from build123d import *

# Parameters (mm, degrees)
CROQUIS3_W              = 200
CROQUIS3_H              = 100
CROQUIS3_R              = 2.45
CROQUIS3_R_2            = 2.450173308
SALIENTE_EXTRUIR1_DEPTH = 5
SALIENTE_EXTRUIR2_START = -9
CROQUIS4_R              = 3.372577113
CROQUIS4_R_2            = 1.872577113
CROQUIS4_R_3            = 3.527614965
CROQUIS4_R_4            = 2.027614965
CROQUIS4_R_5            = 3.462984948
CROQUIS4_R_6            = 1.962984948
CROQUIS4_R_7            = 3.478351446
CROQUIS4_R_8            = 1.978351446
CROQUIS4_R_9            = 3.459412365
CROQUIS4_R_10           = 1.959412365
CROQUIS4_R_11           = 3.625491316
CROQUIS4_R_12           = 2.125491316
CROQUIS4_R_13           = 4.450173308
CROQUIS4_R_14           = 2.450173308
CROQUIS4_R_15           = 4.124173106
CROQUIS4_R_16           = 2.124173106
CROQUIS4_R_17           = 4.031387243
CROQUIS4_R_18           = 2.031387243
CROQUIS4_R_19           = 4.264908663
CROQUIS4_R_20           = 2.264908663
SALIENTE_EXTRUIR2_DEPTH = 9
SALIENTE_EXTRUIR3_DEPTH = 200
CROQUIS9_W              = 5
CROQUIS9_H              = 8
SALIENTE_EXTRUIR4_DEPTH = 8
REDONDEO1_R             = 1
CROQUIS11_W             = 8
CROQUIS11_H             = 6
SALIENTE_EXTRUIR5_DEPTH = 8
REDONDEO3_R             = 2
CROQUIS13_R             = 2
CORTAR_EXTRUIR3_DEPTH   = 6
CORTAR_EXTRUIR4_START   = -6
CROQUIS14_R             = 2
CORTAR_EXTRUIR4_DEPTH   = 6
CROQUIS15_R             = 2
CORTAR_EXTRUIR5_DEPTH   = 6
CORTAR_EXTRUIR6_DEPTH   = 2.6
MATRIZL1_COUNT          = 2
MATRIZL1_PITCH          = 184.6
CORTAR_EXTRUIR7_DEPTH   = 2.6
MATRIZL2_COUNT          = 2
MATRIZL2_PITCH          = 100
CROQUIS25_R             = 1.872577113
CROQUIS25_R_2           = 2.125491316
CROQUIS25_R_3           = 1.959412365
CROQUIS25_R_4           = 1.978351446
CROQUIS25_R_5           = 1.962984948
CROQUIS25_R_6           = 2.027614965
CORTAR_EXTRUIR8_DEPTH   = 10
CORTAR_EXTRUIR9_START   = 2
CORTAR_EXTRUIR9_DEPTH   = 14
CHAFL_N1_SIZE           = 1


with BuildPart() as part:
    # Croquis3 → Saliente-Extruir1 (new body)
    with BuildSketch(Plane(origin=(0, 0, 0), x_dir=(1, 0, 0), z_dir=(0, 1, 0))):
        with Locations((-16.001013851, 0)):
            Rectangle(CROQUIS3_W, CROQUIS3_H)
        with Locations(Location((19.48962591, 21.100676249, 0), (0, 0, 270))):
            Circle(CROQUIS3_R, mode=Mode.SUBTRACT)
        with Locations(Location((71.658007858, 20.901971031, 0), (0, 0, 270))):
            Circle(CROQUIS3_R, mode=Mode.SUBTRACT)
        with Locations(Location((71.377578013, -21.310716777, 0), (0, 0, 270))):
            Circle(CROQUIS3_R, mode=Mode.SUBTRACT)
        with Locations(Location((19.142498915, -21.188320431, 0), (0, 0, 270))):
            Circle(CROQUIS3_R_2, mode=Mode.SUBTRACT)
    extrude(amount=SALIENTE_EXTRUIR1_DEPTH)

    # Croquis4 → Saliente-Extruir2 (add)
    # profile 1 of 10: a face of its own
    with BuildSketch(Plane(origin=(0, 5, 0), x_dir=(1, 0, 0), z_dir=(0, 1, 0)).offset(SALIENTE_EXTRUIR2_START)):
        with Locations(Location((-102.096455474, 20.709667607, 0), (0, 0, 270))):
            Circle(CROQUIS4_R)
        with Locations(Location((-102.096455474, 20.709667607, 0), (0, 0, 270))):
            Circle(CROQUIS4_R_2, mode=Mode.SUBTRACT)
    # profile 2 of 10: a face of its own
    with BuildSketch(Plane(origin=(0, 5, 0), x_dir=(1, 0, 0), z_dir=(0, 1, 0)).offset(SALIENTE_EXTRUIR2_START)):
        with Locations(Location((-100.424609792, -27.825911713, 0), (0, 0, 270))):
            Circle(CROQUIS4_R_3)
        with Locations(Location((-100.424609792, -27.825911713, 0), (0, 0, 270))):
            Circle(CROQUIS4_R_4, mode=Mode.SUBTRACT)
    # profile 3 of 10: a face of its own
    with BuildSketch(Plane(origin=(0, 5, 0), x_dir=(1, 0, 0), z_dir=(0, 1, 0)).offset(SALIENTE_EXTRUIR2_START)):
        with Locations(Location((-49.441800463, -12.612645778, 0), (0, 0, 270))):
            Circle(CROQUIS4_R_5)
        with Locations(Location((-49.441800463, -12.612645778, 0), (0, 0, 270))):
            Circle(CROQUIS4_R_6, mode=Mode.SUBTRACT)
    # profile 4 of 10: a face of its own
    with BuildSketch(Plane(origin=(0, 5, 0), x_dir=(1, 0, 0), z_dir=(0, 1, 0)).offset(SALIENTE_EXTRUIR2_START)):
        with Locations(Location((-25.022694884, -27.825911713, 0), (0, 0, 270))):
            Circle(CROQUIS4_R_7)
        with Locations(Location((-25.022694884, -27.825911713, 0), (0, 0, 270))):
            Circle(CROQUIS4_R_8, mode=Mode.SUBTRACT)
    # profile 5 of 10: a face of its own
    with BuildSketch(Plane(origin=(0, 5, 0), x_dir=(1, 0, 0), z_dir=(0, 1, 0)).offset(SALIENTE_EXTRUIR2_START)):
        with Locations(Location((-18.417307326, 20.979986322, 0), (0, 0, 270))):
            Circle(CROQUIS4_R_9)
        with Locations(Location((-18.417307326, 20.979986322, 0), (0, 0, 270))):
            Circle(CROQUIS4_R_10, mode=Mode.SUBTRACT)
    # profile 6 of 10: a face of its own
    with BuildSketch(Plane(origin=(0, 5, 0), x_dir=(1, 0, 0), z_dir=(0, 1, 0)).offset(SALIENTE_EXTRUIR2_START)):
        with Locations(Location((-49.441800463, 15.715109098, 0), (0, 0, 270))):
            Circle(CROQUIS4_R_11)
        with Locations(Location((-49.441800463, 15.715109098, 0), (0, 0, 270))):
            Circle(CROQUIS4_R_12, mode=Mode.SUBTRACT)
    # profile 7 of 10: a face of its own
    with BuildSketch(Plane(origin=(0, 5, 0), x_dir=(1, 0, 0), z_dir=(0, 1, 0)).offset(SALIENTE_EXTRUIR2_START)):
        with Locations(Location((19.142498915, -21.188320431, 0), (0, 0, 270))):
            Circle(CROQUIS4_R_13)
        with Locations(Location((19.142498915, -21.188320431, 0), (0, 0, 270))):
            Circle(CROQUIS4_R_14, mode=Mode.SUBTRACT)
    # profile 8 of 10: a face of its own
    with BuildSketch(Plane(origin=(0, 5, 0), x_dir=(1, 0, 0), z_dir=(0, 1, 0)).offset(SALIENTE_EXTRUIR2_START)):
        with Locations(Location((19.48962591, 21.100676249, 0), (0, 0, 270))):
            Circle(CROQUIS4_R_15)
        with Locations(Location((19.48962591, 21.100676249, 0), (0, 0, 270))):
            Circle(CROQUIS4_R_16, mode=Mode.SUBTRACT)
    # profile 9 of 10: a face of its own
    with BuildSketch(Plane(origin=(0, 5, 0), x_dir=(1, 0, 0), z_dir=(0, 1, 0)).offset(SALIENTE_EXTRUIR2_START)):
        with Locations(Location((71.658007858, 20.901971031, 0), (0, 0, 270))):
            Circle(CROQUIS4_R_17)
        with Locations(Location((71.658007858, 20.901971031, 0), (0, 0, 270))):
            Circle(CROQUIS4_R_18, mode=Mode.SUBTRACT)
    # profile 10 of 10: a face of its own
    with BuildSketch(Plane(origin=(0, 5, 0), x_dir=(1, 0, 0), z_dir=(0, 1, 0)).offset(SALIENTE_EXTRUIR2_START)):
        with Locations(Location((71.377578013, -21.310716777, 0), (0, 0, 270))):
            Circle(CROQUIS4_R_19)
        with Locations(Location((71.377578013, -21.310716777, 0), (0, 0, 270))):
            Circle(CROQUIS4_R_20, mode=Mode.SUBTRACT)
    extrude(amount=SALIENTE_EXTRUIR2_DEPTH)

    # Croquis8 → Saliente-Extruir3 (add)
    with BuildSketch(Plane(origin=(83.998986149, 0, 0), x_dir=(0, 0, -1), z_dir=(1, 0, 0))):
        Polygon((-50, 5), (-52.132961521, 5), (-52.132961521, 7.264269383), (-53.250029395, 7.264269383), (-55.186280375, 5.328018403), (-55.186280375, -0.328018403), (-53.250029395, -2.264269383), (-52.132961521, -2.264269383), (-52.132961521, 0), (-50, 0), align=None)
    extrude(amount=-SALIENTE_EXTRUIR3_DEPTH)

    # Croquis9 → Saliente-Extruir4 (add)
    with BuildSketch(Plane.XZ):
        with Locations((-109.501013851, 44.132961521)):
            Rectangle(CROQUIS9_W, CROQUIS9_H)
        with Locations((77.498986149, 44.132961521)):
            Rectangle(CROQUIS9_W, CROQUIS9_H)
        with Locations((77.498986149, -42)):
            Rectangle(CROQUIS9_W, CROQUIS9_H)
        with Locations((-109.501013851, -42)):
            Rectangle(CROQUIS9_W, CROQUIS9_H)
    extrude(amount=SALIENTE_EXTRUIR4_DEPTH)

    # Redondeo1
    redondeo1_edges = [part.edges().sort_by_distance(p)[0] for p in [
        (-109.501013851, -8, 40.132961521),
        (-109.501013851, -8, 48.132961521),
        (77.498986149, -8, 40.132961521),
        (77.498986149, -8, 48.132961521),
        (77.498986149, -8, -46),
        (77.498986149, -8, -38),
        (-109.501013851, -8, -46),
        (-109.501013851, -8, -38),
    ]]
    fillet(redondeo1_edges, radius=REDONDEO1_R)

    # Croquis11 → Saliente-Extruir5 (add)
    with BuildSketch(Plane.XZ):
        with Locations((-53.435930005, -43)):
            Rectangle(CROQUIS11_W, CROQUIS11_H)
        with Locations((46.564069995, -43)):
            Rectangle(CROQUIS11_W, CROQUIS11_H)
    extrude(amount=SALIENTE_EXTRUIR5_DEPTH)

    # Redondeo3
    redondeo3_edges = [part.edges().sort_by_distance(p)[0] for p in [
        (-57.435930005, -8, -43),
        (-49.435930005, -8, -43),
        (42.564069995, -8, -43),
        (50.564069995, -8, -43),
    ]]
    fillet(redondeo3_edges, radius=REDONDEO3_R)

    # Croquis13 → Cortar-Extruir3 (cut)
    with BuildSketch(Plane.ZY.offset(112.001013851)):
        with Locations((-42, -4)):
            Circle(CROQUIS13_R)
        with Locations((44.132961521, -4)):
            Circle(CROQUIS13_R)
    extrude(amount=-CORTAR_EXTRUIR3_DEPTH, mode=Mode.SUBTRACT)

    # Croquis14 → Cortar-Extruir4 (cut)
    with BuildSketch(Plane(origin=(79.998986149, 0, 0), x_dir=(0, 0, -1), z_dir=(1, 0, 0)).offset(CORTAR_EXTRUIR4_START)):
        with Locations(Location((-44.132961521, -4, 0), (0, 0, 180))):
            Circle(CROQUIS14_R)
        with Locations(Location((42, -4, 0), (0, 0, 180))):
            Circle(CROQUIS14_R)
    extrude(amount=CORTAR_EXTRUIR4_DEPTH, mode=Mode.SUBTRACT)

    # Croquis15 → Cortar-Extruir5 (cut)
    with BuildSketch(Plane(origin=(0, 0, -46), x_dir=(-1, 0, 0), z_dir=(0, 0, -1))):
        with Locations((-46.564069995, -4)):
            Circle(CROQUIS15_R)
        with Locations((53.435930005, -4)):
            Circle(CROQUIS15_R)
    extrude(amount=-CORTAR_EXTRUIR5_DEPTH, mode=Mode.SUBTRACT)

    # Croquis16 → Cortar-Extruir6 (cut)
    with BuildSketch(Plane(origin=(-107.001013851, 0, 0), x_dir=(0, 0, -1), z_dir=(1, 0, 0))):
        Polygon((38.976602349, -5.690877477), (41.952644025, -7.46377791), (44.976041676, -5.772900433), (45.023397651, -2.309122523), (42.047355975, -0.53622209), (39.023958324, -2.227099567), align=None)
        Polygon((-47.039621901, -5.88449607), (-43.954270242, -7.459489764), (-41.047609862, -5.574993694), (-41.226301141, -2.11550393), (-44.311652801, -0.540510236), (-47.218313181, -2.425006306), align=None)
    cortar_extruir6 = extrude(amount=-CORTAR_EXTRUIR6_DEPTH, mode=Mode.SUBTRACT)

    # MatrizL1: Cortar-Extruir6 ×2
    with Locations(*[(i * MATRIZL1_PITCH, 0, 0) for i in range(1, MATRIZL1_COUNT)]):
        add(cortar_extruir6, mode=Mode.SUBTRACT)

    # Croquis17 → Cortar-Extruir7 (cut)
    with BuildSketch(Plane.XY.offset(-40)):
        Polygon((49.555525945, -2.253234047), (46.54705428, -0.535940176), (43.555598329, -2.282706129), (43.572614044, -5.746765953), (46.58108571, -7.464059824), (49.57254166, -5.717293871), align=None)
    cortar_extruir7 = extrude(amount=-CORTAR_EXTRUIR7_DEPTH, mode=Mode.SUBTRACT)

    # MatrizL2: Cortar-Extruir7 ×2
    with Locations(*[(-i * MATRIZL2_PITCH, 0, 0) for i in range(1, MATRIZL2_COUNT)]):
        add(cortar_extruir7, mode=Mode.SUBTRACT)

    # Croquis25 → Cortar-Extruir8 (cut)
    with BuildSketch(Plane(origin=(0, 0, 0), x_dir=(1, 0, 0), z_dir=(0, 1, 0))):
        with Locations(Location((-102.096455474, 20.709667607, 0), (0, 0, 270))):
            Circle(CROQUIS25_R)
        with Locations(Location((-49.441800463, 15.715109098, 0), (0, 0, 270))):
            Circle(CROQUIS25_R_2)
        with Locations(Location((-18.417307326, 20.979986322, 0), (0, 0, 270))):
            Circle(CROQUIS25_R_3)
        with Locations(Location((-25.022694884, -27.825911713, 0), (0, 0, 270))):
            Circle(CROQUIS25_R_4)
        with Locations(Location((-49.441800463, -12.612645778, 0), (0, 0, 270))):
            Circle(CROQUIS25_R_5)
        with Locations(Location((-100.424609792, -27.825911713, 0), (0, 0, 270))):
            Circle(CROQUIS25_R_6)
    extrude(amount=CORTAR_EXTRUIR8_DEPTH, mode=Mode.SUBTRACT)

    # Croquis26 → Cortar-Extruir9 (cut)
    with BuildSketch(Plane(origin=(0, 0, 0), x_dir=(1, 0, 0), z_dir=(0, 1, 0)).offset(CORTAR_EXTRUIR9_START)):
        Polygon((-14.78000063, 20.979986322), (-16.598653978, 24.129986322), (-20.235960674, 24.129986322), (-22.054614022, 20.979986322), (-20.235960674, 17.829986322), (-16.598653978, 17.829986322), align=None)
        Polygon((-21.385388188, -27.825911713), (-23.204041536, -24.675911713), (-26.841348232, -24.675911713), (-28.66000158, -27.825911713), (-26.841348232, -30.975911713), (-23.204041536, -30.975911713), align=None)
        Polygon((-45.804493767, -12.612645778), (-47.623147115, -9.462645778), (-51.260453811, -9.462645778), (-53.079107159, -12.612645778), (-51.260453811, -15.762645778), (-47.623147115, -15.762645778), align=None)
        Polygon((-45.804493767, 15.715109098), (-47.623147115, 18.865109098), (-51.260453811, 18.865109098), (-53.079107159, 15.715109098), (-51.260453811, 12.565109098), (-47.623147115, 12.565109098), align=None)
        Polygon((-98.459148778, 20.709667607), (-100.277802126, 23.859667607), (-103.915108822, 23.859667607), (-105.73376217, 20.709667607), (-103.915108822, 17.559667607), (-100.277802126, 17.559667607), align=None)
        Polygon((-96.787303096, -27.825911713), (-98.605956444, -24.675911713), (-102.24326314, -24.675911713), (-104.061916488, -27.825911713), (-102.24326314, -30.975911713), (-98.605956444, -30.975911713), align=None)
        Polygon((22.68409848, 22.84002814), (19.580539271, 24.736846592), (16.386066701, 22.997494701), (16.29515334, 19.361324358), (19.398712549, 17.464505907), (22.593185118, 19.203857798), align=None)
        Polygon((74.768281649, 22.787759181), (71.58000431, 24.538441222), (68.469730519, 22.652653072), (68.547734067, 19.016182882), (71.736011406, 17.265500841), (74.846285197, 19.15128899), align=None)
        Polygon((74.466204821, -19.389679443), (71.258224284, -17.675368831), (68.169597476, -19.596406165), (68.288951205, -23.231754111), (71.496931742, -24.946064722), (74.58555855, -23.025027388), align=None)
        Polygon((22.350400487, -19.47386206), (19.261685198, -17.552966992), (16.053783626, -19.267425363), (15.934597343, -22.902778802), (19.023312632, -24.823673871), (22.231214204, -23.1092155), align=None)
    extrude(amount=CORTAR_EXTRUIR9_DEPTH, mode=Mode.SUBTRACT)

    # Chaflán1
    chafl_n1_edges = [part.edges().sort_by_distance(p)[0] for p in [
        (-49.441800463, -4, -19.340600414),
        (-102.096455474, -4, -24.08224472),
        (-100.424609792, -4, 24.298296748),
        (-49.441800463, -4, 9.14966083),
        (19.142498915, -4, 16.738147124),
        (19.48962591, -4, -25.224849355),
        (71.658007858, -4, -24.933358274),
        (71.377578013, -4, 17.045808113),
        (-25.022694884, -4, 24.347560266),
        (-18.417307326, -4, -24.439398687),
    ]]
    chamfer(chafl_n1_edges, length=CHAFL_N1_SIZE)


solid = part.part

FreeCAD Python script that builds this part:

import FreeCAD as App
import Part
import Sketcher
from FreeCAD import Vector
Q = App.Units.Quantity


def edges_at(feature, points):
    """Names of the edges that pass closest to the given points."""
    edges = feature.Shape.Edges
    near = lambda p: min(range(len(edges)), key=lambda i: edges[i].distToShape(Part.Vertex(*p))[0])
    return sorted({f"Edge{near(p) + 1}" for p in points})


def add_polygon(sketch, points):
    """Adds a closed chain of lines whose ends are joined by coincident constraints."""
    first, n = sketch.GeometryCount, len(points)
    for a, b in zip(points, points[1:] + points[:1]):
        sketch.addGeometry(Part.LineSegment(App.Vector(*a, 0), App.Vector(*b, 0)), False)
    for i in range(n):
        sketch.addConstraint(Sketcher.Constraint("Coincident", first + i, 2, first + (i + 1) % n, 1))

doc = App.newDocument("Part")
body = doc.addObject("PartDesign::Body", "Body")

sketch1 = body.newObject("Sketcher::SketchObject", "Sketch")
sketch1.AttachmentSupport = (doc.getObject("XZ_Plane"), [""])
sketch1.MapMode = "FlatFace"
add_polygon(sketch1, [(-116, -50), (-116, 50), (84, 50), (84, -50)])
sketch1.addGeometry(Part.Circle(Vector(19.1, 21.2, 0), Vector(0, 0, 1), 2.5), False)
sketch1.addGeometry(Part.Circle(Vector(71.4, 21.3, 0), Vector(0, 0, 1), 2.5), False)
sketch1.addGeometry(Part.Circle(Vector(19.5, -21.1, 0), Vector(0, 0, 1), 2.5), False)
sketch1.addGeometry(Part.Circle(Vector(71.7, -20.9, 0), Vector(0, 0, 1), 2.5), False)
sketch1.addConstraint([
    Sketcher.Constraint("Vertical", 0),
    Sketcher.Constraint("Horizontal", 1),
    Sketcher.Constraint("Vertical", 2),
    Sketcher.Constraint("Horizontal", 3),
    Sketcher.Constraint("Equal", 5, 6),
    Sketcher.Constraint("Equal", 6, 7),
    Sketcher.Constraint("Diameter", 5, 4.9),
    Sketcher.Constraint("DistanceX", 1, 1, 1, 2, 200.0),
    Sketcher.Constraint("DistanceY", 0, 1, 0, 2, 100.0),
    Sketcher.Constraint("DistanceY", -1, 1, 0, 2, 50.0),
    Sketcher.Constraint("Diameter", 4, 4.900347),
    Sketcher.Constraint("DistanceX", -1, 1, 4, 3, 19.142499),
    Sketcher.Constraint("DistanceY", -1, 1, 4, 3, 21.18832),
    Sketcher.Constraint("DistanceX", -1, 1, 5, 3, 71.377578),
    Sketcher.Constraint("DistanceY", 7, 3, -1, 1, 20.901971),
    Sketcher.Constraint("DistanceX", 5, 3, 7, 3, 0.28043),
    Sketcher.Constraint("DistanceX", 6, 3, 7, 3, 52.168382),
    Sketcher.Constraint("DistanceX", 0, 2, 6, 3, 135.49064),
    Sketcher.Constraint("DistanceY", -1, 1, 5, 3, 21.310717),
    Sketcher.Constraint("DistanceY", 6, 3, -1, 1, 21.100676),
])
pad1 = body.newObject("PartDesign::Pad", "Pad")
pad1.Profile = sketch1
pad1.Length = 5
pad1.Reversed = True

sketch2 = body.newObject("Sketcher::SketchObject", "Sketch001")
sketch2.AttachmentSupport = (doc.getObject("XZ_Plane"), [""])
sketch2.MapMode = "FlatFace"
sketch2.AttachmentOffset = App.Placement(Vector(0, 0, 4), App.Rotation())
sketch2.addGeometry([
    Part.Circle(Vector(-102.1, -20.7, 0), Vector(0, 0, 1), 3.4),
    Part.Circle(Vector(-102.1, -20.7, 0), Vector(0, 0, 1), 1.9),
    Part.Circle(Vector(-100.4, 27.8, 0), Vector(0, 0, 1), 3.5),
    Part.Circle(Vector(-100.4, 27.8, 0), Vector(0, 0, 1), 2),
    Part.Circle(Vector(-49.4, 12.6, 0), Vector(0, 0, 1), 3.5),
    Part.Circle(Vector(-49.4, 12.6, 0), Vector(0, 0, 1), 2),
    Part.Circle(Vector(-25, 27.8, 0), Vector(0, 0, 1), 3.5),
    Part.Circle(Vector(-25, 27.8, 0), Vector(0, 0, 1), 2),
    Part.Circle(Vector(-18.4, -21, 0), Vector(0, 0, 1), 3.5),
    Part.Circle(Vector(-18.4, -21, 0), Vector(0, 0, 1), 2),
    Part.Circle(Vector(-49.4, -15.7, 0), Vector(0, 0, 1), 3.6),
    Part.Circle(Vector(-49.4, -15.7, 0), Vector(0, 0, 1), 2.1),
    Part.Circle(Vector(19.1, 21.2, 0), Vector(0, 0, 1), 4.5),
    Part.Circle(Vector(19.1, 21.2, 0), Vector(0, 0, 1), 2.5),
    Part.Circle(Vector(19.5, -21.1, 0), Vector(0, 0, 1), 4.1),
    Part.Circle(Vector(19.5, -21.1, 0), Vector(0, 0, 1), 2.1),
    Part.Circle(Vector(71.7, -20.9, 0), Vector(0, 0, 1), 4),
    Part.Circle(Vector(71.7, -20.9, 0), Vector(0, 0, 1), 2),
    Part.Circle(Vector(71.4, 21.3, 0), Vector(0, 0, 1), 4.3),
    Part.Circle(Vector(71.4, 21.3, 0), Vector(0, 0, 1), 2.3),
], False)
sketch2.addConstraint([
    Sketcher.Constraint("Coincident", 1, 3, 0, 3),
    Sketcher.Constraint("Coincident", 3, 3, 2, 3),
    Sketcher.Constraint("Coincident", 5, 3, 4, 3),
    Sketcher.Constraint("Coincident", 7, 3, 6, 3),
    Sketcher.Constraint("Coincident", 9, 3, 8, 3),
    Sketcher.Constraint("Coincident", 11, 3, 10, 3),
    Sketcher.Constraint("Coincident", 13, 3, 12, 3),
    Sketcher.Constraint("Coincident", 15, 3, 14, 3),
    Sketcher.Constraint("Coincident", 17, 3, 16, 3),
    Sketcher.Constraint("Coincident", 19, 3, 18, 3),
    Sketcher.Constraint("Horizontal", 3, 3, 6, 3),
    Sketcher.Constraint("Vertical", 5, 3, 10, 3),
    Sketcher.Constraint("Diameter", 2, 7.05523),
    Sketcher.Constraint("Diameter", 3, 4.05523),
    Sketcher.Constraint("Diameter", 4, 6.92597),
    Sketcher.Constraint("Diameter", 5, 3.92597),
    Sketcher.Constraint("Diameter", 0, 6.745154),
    Sketcher.Constraint("Diameter", 1, 3.745154),
    Sketcher.Constraint("Diameter", 6, 6.956703),
    Sketcher.Constraint("Diameter", 7, 3.956703),
    Sketcher.Constraint("Diameter", 8, 6.918825),
    Sketcher.Constraint("Diameter", 9, 3.918825),
    Sketcher.Constraint("Diameter", 10, 7.250983),
    Sketcher.Constraint("Diameter", 11, 4.250983),
    Sketcher.Constraint("Diameter", 12, 8.900347),
    Sketcher.Constraint("Diameter", 13, 4.900347),
    Sketcher.Constraint("Diameter", 14, 8.248346),
    Sketcher.Constraint("Diameter", 15, 4.248346),
    Sketcher.Constraint("Diameter", 16, 8.062774),
    Sketcher.Constraint("Diameter", 17, 4.062774),
    Sketcher.Constraint("Diameter", 18, 8.529817),
    Sketcher.Constraint("Diameter", 19, 4.529817),
    Sketcher.Constraint("DistanceX", 4, 3, -1, 1, 49.4418),
    Sketcher.Constraint("DistanceX", -1, 1, 12, 3, 19.142499),
    Sketcher.Constraint("DistanceY", 8, 3, 6, 3, 48.805898),
    Sketcher.Constraint("DistanceX", 2, 3, -1, 1, 100.42461),
    Sketcher.Constraint("DistanceY", -1, 1, 2, 3, 27.825912),
    Sketcher.Constraint("DistanceY", 10, 3, -1, 1, 15.715109),
    Sketcher.Constraint("DistanceY", -1, 1, 12, 3, 21.18832),
    Sketcher.Constraint("DistanceY", 16, 3, -1, 1, 20.901971),
    Sketcher.Constraint("DistanceX", -1, 1, 18, 3, 71.377578),
    Sketcher.Constraint("DistanceY", 0, 3, 2, 3, 48.535579),
    Sketcher.Constraint("DistanceX", 0, 3, 6, 3, 77.073761),
    Sketcher.Constraint("DistanceX", 0, 3, 8, 3, 83.679148),
    Sketcher.Constraint("DistanceY", 14, 3, 8, 3, 0.12069),
    Sketcher.Constraint("DistanceX", 6, 3, 14, 3, 44.512321),
    Sketcher.Constraint("DistanceX", 14, 3, 16, 3, 52.168382),
    Sketcher.Constraint("DistanceX", 12, 3, 16, 3, 52.515509),
    Sketcher.Constraint("DistanceY", -1, 1, 4, 3, 12.612646),
    Sketcher.Constraint("DistanceY", -1, 1, 18, 3, 21.310717),
])
pad2 = body.newObject("PartDesign::Pad", "Pad001")
pad2.Profile = sketch2
pad2.Length = 9
pad2.Reversed = True

sketch3 = body.newObject("Sketcher::SketchObject", "Sketch002")
sketch3.AttachmentSupport = (doc.getObject("YZ_Plane"), [""])
sketch3.MapMode = "FlatFace"
sketch3.AttachmentOffset = App.Placement(Vector(0, 0, 83.998986), App.Rotation())
add_polygon(sketch3, [(5, 50), (5, 52.1), (7.3, 52.1), (7.3, 53.3), (5.3, 55.2), (-0.3, 55.2), (-2.3, 53.3), (-2.3, 52.1), (0, 52.1), (0, 50)])
sketch3.addConstraint([
    Sketcher.Constraint("Vertical", 0),
    Sketcher.Constraint("Horizontal", 1),
    Sketcher.Constraint("Vertical", 2),
    Sketcher.Constraint("Horizontal", 4),
    Sketcher.Constraint("Vertical", 6),
    Sketcher.Constraint("Horizontal", 7),
    Sketcher.Constraint("Vertical", 8),
    Sketcher.Constraint("Horizontal", 9),
    Sketcher.Constraint("PointOnObject", 7, 2, -2),
    Sketcher.Constraint("Perpendicular", 3, 5),
    Sketcher.Constraint("Horizontal", 2, 2, 5, 2),
    Sketcher.Constraint("Horizontal", 1, 2, 6, 2),
    Sketcher.Constraint("Equal", 1, 7),
    Sketcher.Constraint("Equal", 3, 5),
    Sketcher.Constraint("DistanceX", 9, 1, 9, 2, 5.0),
    Sketcher.Constraint("DistanceY", -1, 1, 8, 2, 50.0),
    Sketcher.Constraint("DistanceX", 1, 1, 1, 2, 2.264269),
    Sketcher.Constraint("DistanceY", 0, 1, 0, 2, 2.132962),
    Sketcher.Constraint("DistanceX", 4, 2, 4, 1, 5.656037),
    Sketcher.Constraint("DistanceY", 2, 1, 2, 2, 1.117068),
])
pad3 = body.newObject("PartDesign::Pad", "Pad002")
pad3.Profile = sketch3
pad3.Length = 200
pad3.Reversed = True

sketch4 = body.newObject("Sketcher::SketchObject", "Sketch003")
sketch4.AttachmentSupport = (doc.getObject("XZ_Plane"), [""])
sketch4.MapMode = "FlatFace"
add_polygon(sketch4, [(-112, 48), (-112, 40), (-107, 40), (-107, 48)])
add_polygon(sketch4, [(75, 48), (75, 40), (80, 40), (80, 48)])
add_polygon(sketch4, [(75, -38), (75, -46), (80, -46), (80, -38)])
add_polygon(sketch4, [(-112, -38), (-112, -46), (-107, -46), (-107, -38)])
sketch4.addConstraint([
    Sketcher.Constraint("Vertical", 0),
    Sketcher.Constraint("Horizontal", 1),
    Sketcher.Constraint("Vertical", 2),
    Sketcher.Constraint("Horizontal", 3),
    Sketcher.Constraint("Vertical", 4),
    Sketcher.Constraint("Horizontal", 5),
    Sketcher.Constraint("Vertical", 6),
    Sketcher.Constraint("Horizontal", 7),
    Sketcher.Constraint("Vertical", 8),
    Sketcher.Constraint("Horizontal", 9),
    Sketcher.Constraint("Vertical", 10),
    Sketcher.Constraint("Horizontal", 11),
    Sketcher.Constraint("Vertical", 12),
    Sketcher.Constraint("Horizontal", 13),
    Sketcher.Constraint("Vertical", 14),
    Sketcher.Constraint("Horizontal", 15),
    Sketcher.Constraint("Horizontal", 1, 2, 4, 2),
    Sketcher.Constraint("Horizontal", 3, 2, 6, 2),
    Sketcher.Constraint("Horizontal", 9, 2, 12, 2),
    Sketcher.Constraint("Horizontal", 11, 2, 14, 2),
    Sketcher.Constraint("Vertical", 7, 2, 8, 2),
    Sketcher.Constraint("Vertical", 6, 2, 9, 2),
    Sketcher.Constraint("Vertical", 3, 2, 12, 2),
    Sketcher.Constraint("Vertical", 2, 2, 13, 2),
    Sketcher.Constraint("Equal", 3, 5),
    Sketcher.Constraint("Equal", 6, 8),
    Sketcher.Constraint("DistanceX", 1, 1, 1, 2, 5.0),
    Sketcher.Constraint("DistanceY", 0, 2, 0, 1, 8.0),
    Sketcher.Constraint("DistanceY", 8, 2, -1, 1, 46.0),
    Sketcher.Constraint("DistanceX", 1, 2, 4, 2, 182.0),
    Sketcher.Constraint("DistanceY", -1, 1, 0, 2, 40.132962),
    Sketcher.Constraint("DistanceX", 0, 2, -1, 1, 112.001014),
])
pad4 = body.newObject("PartDesign::Pad", "Pad003")
pad4.Profile = sketch4
pad4.Length = 8
doc.recompute()

fillet = body.newObject("PartDesign::Fillet", "Fillet")
fillet.Base = (pad4, edges_at(pad4, [
    (-109.501, -8, 40.133),
    (-109.501, -8, 48.133),
    (77.499, -8, 40.133),
    (77.499, -8, 48.133),
    (77.499, -8, -46),
    (77.499, -8, -38),
    (-109.501, -8, -46),
    (-109.501, -8, -38),
]))
fillet.Radius = 1

sketch5 = body.newObject("Sketcher::SketchObject", "Sketch004")
sketch5.AttachmentSupport = (doc.getObject("XZ_Plane"), [""])
sketch5.MapMode = "FlatFace"
add_polygon(sketch5, [(-57, -40), (-57, -46), (-49, -46), (-49, -40)])
add_polygon(sketch5, [(43, -40), (43, -46), (51, -46), (51, -40)])
sketch5.addConstraint([
    Sketcher.Constraint("Vertical", 0),
    Sketcher.Constraint("Horizontal", 1),
    Sketcher.Constraint("Vertical", 2),
    Sketcher.Constraint("Horizontal", 3),
    Sketcher.Constraint("Vertical", 4),
    Sketcher.Constraint("Horizontal", 5),
    Sketcher.Constraint("Vertical", 6),
    Sketcher.Constraint("Horizontal", 7),
    Sketcher.Constraint("Horizontal", 1, 2, 4, 2),
    Sketcher.Constraint("Horizontal", 3, 2, 6, 2),
    Sketcher.Constraint("Equal", 3, 5),
    Sketcher.Constraint("DistanceX", 1, 1, 1, 2, 8.0),
    Sketcher.Constraint("DistanceY", 0, 2, 0, 1, 6.0),
    Sketcher.Constraint("DistanceY", 0, 2, -1, 1, 46.0),
    Sketcher.Constraint("DistanceX", 1, 2, 4, 2, 92.0),
    Sketcher.Constraint("DistanceX", 0, 2, -1, 1, 57.43593),
])
pad5 = body.newObject("PartDesign::Pad", "Pad004")
pad5.Profile = sketch5
pad5.Length = 8
doc.recompute()

fillet2 = body.newObject("PartDesign::Fillet", "Fillet001")
fillet2.Base = (pad5, edges_at(pad5, [
    (-57.436, -8, -43),
    (-49.436, -8, -43),
    (42.564, -8, -43),
    (50.564, -8, -43),
]))
fillet2.Radius = 2

sketch6 = body.newObject("Sketcher::SketchObject", "Sketch005")
sketch6.AttachmentSupport = (doc.getObject("YZ_Plane"), [""])
sketch6.MapMode = "FlatFace"
sketch6.AttachmentOffset = App.Placement(Vector(0, 0, -112.001014), App.Rotation())
sketch6.addGeometry([
    Part.Circle(Vector(-4, -42, 0), Vector(0, 0, 1), 2),
    Part.Circle(Vector(-4, 44.1, 0), Vector(0, 0, 1), 2),
], False)
sketch6.addConstraint([
    Sketcher.Constraint("Equal", 0, 1),
    Sketcher.Constraint("Vertical", 0, 3, 1, 3),
    Sketcher.Constraint("Diameter", 0, 4.0),
    Sketcher.Constraint("DistanceX", 0, 3, -1, 1, 4.0),
    Sketcher.Constraint("DistanceY", 0, 3, -1, 1, 42.0),
    Sketcher.Constraint("DistanceY", -1, 1, 1, 3, 44.132962),
])
pocket1 = body.newObject("PartDesign::Pocket", "Pocket")
pocket1.Profile = sketch6
pocket1.Length = 6
pocket1.Reversed = True

sketch7 = body.newObject("Sketcher::SketchObject", "Sketch006")
sketch7.AttachmentSupport = (doc.getObject("YZ_Plane"), [""])
sketch7.MapMode = "FlatFace"
sketch7.AttachmentOffset = App.Placement(Vector(0, 0, 73.998986), App.Rotation())
sketch7.addGeometry([
    Part.Circle(Vector(-4, 44.1, 0), Vector(0, 0, 1), 2),
    Part.Circle(Vector(-4, -42, 0), Vector(0, 0, 1), 2),
], False)
sketch7.addConstraint([
    Sketcher.Constraint("Equal", 0, 1),
    Sketcher.Constraint("Vertical", 0, 3, 1, 3),
    Sketcher.Constraint("Diameter", 0, 4.0),
    Sketcher.Constraint("DistanceX", 0, 3, -1, 1, 4.0),
    Sketcher.Constraint("DistanceY", 1, 3, -1, 1, 42.0),
    Sketcher.Constraint("DistanceY", -1, 1, 0, 3, 44.132962),
])
pocket2 = body.newObject("PartDesign::Pocket", "Pocket001")
pocket2.Profile = sketch7
pocket2.Length = 6
pocket2.Reversed = True

sketch8 = body.newObject("Sketcher::SketchObject", "Sketch007")
sketch8.AttachmentSupport = (doc.getObject("XY_Plane"), [""])
sketch8.MapMode = "FlatFace"
sketch8.AttachmentOffset = App.Placement(Vector(0, 0, -46), App.Rotation())
sketch8.addGeometry([
    Part.Circle(Vector(46.6, -4, 0), Vector(0, 0, 1), 2),
    Part.Circle(Vector(-53.4, -4, 0), Vector(0, 0, 1), 2),
], False)
sketch8.addConstraint([
    Sketcher.Constraint("Equal", 0, 1),
    Sketcher.Constraint("Horizontal", 0, 3, 1, 3),
    Sketcher.Constraint("Diameter", 0, 4.0),
    Sketcher.Constraint("DistanceY", 0, 3, -1, 1, 4.0),
    Sketcher.Constraint("DistanceX", 1, 3, 0, 3, 100.0),
    Sketcher.Constraint("DistanceX", -1, 1, 0, 3, 46.56407),
])
pocket3 = body.newObject("PartDesign::Pocket", "Pocket002")
pocket3.Profile = sketch8
pocket3.Length = 6
pocket3.Reversed = True

sketch9 = body.newObject("Sketcher::SketchObject", "Sketch008")
sketch9.AttachmentSupport = (doc.getObject("YZ_Plane"), [""])
sketch9.MapMode = "FlatFace"
sketch9.AttachmentOffset = App.Placement(Vector(0, 0, -107.001014), App.Rotation())
add_polygon(sketch9, [(-5.7, -39), (-7.5, -42), (-5.8, -45), (-2.3, -45), (-0.5, -42), (-2.2, -39)])
add_polygon(sketch9, [(-5.9, 47), (-7.5, 44), (-5.6, 41), (-2.1, 41.2), (-0.5, 44.3), (-2.4, 47.2)])
sketch9.addConstraint([
    Sketcher.Constraint("Parallel", 0, 3),
    Sketcher.Constraint("Parallel", 1, 4),
    Sketcher.Constraint("Parallel", 2, 5),
    Sketcher.Constraint("Parallel", 6, 9),
    Sketcher.Constraint("Parallel", 7, 10),
    Sketcher.Constraint("Parallel", 8, 11),
    Sketcher.Constraint("Equal", 0, 1),
    Sketcher.Constraint("Equal", 1, 2),
    Sketcher.Constraint("Equal", 2, 3),
    Sketcher.Constraint("Equal", 5, 6),
    Sketcher.Constraint("Equal", 6, 7),
    Sketcher.Constraint("Equal", 7, 8),
    Sketcher.Constraint("Equal", 8, 9),
    Sketcher.Constraint("Distance", 0, 3.464102),
    Sketcher.Constraint("DistanceX", 1, 2, -1, 1, 5.7729),
    Sketcher.Constraint("DistanceX", 4, 2, -1, 1, 2.2271),
    Sketcher.Constraint("DistanceY", -1, 1, 8, 2, 41.226301),
    Sketcher.Constraint("DistanceX", 2, 2, 3, 2, 1.7729),
    Sketcher.Constraint("DistanceY", 1, 2, -1, 1, 44.976042),
    Sketcher.Constraint("DistanceY", 4, 2, -1, 1, 39.023958),
    Sketcher.Constraint("DistanceX", 6, 2, -1, 1, 7.45949),
    Sketcher.Constraint("DistanceY", -1, 1, 6, 2, 43.95427),
    Sketcher.Constraint("DistanceY", -1, 1, 7, 2, 41.04761),
    Sketcher.Constraint("DistanceX", 9, 2, -1, 1, 0.54051),
])
pocket4 = body.newObject("PartDesign::Pocket", "Pocket003")
pocket4.Profile = sketch9
pocket4.Length = 2.6
doc.recompute()

linearpattern = body.newObject("PartDesign::LinearPattern", "LinearPattern")
linearpattern.Originals = [pocket4]
linearpattern.Direction = (doc.getObject("X_Axis"), [""])
linearpattern.Mode = "offset"
linearpattern.Offset = 184.6
linearpattern.Occurrences = 2
body.Tip = linearpattern

sketch10 = body.newObject("Sketcher::SketchObject", "Sketch009")
sketch10.AttachmentSupport = (doc.getObject("XY_Plane"), [""])
sketch10.MapMode = "FlatFace"
sketch10.AttachmentOffset = App.Placement(Vector(0, 0, -40), App.Rotation())
add_polygon(sketch10, [(49.6, -2.3), (46.5, -0.5), (43.6, -2.3), (43.6, -5.7), (46.6, -7.5), (49.6, -5.7)])
sketch10.addConstraint([
    Sketcher.Constraint("Parallel", 0, 3),
    Sketcher.Constraint("Parallel", 1, 4),
    Sketcher.Constraint("Parallel", 2, 5),
    Sketcher.Constraint("Equal", 0, 1),
    Sketcher.Constraint("Equal", 1, 2),
    Sketcher.Constraint("Equal", 2, 3),
    Sketcher.Constraint("Distance", 0, 3.464102),
    Sketcher.Constraint("DistanceX", -1, 1, 1, 2, 43.555598),
    Sketcher.Constraint("DistanceY", 0, 2, -1, 1, 0.53594),
    Sketcher.Constraint("DistanceY", 3, 2, -1, 1, 7.46406),
    Sketcher.Constraint("DistanceX", -1, 1, 4, 2, 49.572542),
    Sketcher.Constraint("DistanceX", 2, 2, 0, 2, 2.97444),
])
pocket5 = body.newObject("PartDesign::Pocket", "Pocket004")
pocket5.Profile = sketch10
pocket5.Length = 2.6
doc.recompute()

linearpattern2 = body.newObject("PartDesign::LinearPattern", "LinearPattern001")
linearpattern2.Originals = [pocket5]
linearpattern2.Direction = (doc.getObject("X_Axis"), [""])
linearpattern2.Mode = "offset"
linearpattern2.Offset = 100
linearpattern2.Occurrences = 2
linearpattern2.Reversed = True
body.Tip = linearpattern2

sketch11 = body.newObject("Sketcher::SketchObject", "Sketch010")
sketch11.AttachmentSupport = (doc.getObject("XZ_Plane"), [""])
sketch11.MapMode = "FlatFace"
sketch11.addGeometry([
    Part.Circle(Vector(-102.1, -20.7, 0), Vector(0, 0, 1), 1.9),
    Part.Circle(Vector(-49.4, -15.7, 0), Vector(0, 0, 1), 2.1),
    Part.Circle(Vector(-18.4, -21, 0), Vector(0, 0, 1), 2),
    Part.Circle(Vector(-25, 27.8, 0), Vector(0, 0, 1), 2),
    Part.Circle(Vector(-49.4, 12.6, 0), Vector(0, 0, 1), 2),
    Part.Circle(Vector(-100.4, 27.8, 0), Vector(0, 0, 1), 2),
], False)
sketch11.addConstraint([
    Sketcher.Constraint("Horizontal", 3, 3, 5, 3),
    Sketcher.Constraint("Vertical", 1, 3, 4, 3),
    Sketcher.Constraint("Diameter", 4, 3.92597),
    Sketcher.Constraint("Diameter", 5, 4.05523),
    Sketcher.Constraint("Diameter", 0, 3.745154),
    Sketcher.Constraint("Diameter", 1, 4.250983),
    Sketcher.Constraint("Diameter", 2, 3.918825),
    Sketcher.Constraint("Diameter", 3, 3.956703),
    Sketcher.Constraint("DistanceX", 1, 3, -1, 1, 49.4418),
    Sketcher.Constraint("DistanceY", 2, 3, 3, 3, 48.805898),
    Sketcher.Constraint("DistanceY", 1, 3, -1, 1, 15.715109),
    Sketcher.Constraint("DistanceY", -1, 1, 3, 3, 27.825912),
    Sketcher.Constraint("DistanceX", 5, 3, -1, 1, 100.42461),
    Sketcher.Constraint("DistanceY", 0, 3, 1, 3, 4.994559),
    Sketcher.Constraint("DistanceX", 0, 3, 2, 3, 83.679148),
    Sketcher.Constraint("DistanceX", 0, 3, 3, 3, 77.073761),
    Sketcher.Constraint("DistanceX", 0, 3, -1, 1, 102.096455),
    Sketcher.Constraint("DistanceY", -1, 1, 4, 3, 12.612646),
])
pocket6 = body.newObject("PartDesign::Pocket", "Pocket005")
pocket6.Profile = sketch11
pocket6.Length = 10

sketch12 = body.newObject("Sketcher::SketchObject", "Sketch011")
sketch12.AttachmentSupport = (doc.getObject("XZ_Plane"), [""])
sketch12.MapMode = "FlatFace"
sketch12.AttachmentOffset = App.Placement(Vector(0, 0, -2), App.Rotation())
add_polygon(sketch12, [(-14.8, -21), (-16.6, -24.1), (-20.2, -24.1), (-22.1, -21), (-20.2, -17.8), (-16.6, -17.8)])
add_polygon(sketch12, [(-21.4, 27.8), (-23.2, 24.7), (-26.8, 24.7), (-28.7, 27.8), (-26.8, 31), (-23.2, 31)])
add_polygon(sketch12, [(-45.8, 12.6), (-47.6, 9.5), (-51.3, 9.5), (-53.1, 12.6), (-51.3, 15.8), (-47.6, 15.8)])
add_polygon(sketch12, [(-45.8, -15.7), (-47.6, -18.9), (-51.3, -18.9), (-53.1, -15.7), (-51.3, -12.6), (-47.6, -12.6)])
add_polygon(sketch12, [(-98.5, -20.7), (-100.3, -23.9), (-103.9, -23.9), (-105.7, -20.7), (-103.9, -17.6), (-100.3, -17.6)])
add_polygon(sketch12, [(-96.8, 27.8), (-98.6, 24.7), (-102.2, 24.7), (-104.1, 27.8), (-102.2, 31), (-98.6, 31)])
add_polygon(sketch12, [(22.7, -22.8), (19.6, -24.7), (16.4, -23), (16.3, -19.4), (19.4, -17.5), (22.6, -19.2)])
add_polygon(sketch12, [(74.8, -22.8), (71.6, -24.5), (68.5, -22.7), (68.5, -19), (71.7, -17.3), (74.8, -19.2)])
add_polygon(sketch12, [(74.5, 19.4), (71.3, 17.7), (68.2, 19.6), (68.3, 23.2), (71.5, 24.9), (74.6, 23)])
add_polygon(sketch12, [(22.4, 19.5), (19.3, 17.6), (16.1, 19.3), (15.9, 22.9), (19, 24.8), (22.2, 23.1)])
sketch12.addConstraint([
    Sketcher.Constraint("Horizontal", 1),
    Sketcher.Constraint("Horizontal", 4),
    Sketcher.Constraint("Horizontal", 7),
    Sketcher.Constraint("Horizontal", 10),
    Sketcher.Constraint("Horizontal", 13),
    Sketcher.Constraint("Horizontal", 16),
    Sketcher.Constraint("Horizontal", 19),
    Sketcher.Constraint("Horizontal", 22),
    Sketcher.Constraint("Horizontal", 25),
    Sketcher.Constraint("Horizontal", 28),
    Sketcher.Constraint("Horizontal", 31),
    Sketcher.Constraint("Horizontal", 34),
    Sketcher.Constraint("Parallel", 0, 3),
    Sketcher.Constraint("Parallel", 2, 5),
    Sketcher.Constraint("Parallel", 3, 6),
    Sketcher.Constraint("Parallel", 5, 8),
    Sketcher.Constraint("Parallel", 6, 9),
    Sketcher.Constraint("Parallel", 8, 11),
    Sketcher.Constraint("Parallel", 9, 12),
    Sketcher.Constraint("Parallel", 11, 14),
    Sketcher.Constraint("Parallel", 12, 15),
    Sketcher.Constraint("Parallel", 14, 17),
    Sketcher.Constraint("Parallel", 15, 18),
    Sketcher.Constraint("Parallel", 17, 20),
    Sketcher.Constraint("Parallel", 18, 21),
    Sketcher.Constraint("Parallel", 20, 23),
    Sketcher.Constraint("Parallel", 21, 24),
    Sketcher.Constraint("Parallel", 23, 26),
    Sketcher.Constraint("Parallel", 24, 27),
    Sketcher.Constraint("Parallel", 26, 29),
    Sketcher.Constraint("Parallel", 27, 30),
    Sketcher.Constraint("Parallel", 29, 32),
    Sketcher.Constraint("Parallel", 30, 33),
    Sketcher.Constraint("Parallel", 32, 35),
    Sketcher.Constraint("Parallel", 36, 39),
    Sketcher.Constraint("Parallel", 37, 40),
    Sketcher.Constraint("Parallel", 38, 41),
    Sketcher.Constraint("Parallel", 42, 45),
    Sketcher.Constraint("Parallel", 43, 46),
    Sketcher.Constraint("Parallel", 44, 47),
    Sketcher.Constraint("Parallel", 48, 51),
    Sketcher.Constraint("Parallel", 49, 52),
    Sketcher.Constraint("Parallel", 50, 53),
    Sketcher.Constraint("Parallel", 54, 57),
    Sketcher.Constraint("Parallel", 55, 58),
    Sketcher.Constraint("Parallel", 56, 59),
    Sketcher.Constraint("Horizontal", 2, 2, 5, 2),
    Sketcher.Constraint("Horizontal", 8, 2, 11, 2),
    Sketcher.Constraint("Horizontal", 14, 2, 17, 2),
    Sketcher.Constraint("Horizontal", 20, 2, 23, 2),
    Sketcher.Constraint("Horizontal", 26, 2, 29, 2),
    Sketcher.Constraint("Horizontal", 7, 2, 30, 2),
    Sketcher.Constraint("Horizontal", 11, 2, 32, 2),
    Sketcher.Constraint("Horizontal", 10, 2, 33, 2),
    Sketcher.Constraint("Horizontal", 32, 2, 35, 2),
    Sketcher.Constraint("Vertical", 1, 2, 3, 2),
    Sketcher.Constraint("Vertical", 0, 2, 4, 2),
    Sketcher.Constraint("Vertical", 7, 2, 9, 2),
    Sketcher.Constraint("Vertical", 13, 2, 15, 2),
    Sketcher.Constraint("Vertical", 16, 2, 18, 2),
    Sketcher.Constraint("Vertical", 15, 2, 19, 2),
    Sketcher.Constraint("Vertical", 14, 2, 20, 2),
    Sketcher.Constraint("Vertical", 19, 2, 21, 2),
    Sketcher.Constraint("Vertical", 25, 2, 27, 2),
    Sketcher.Constraint("Equal", 4, 7),
    Sketcher.Constraint("Equal", 10, 13),
    Sketcher.Constraint("Equal", 22, 25),
    Sketcher.Constraint("Equal", 28, 31),
    Sketcher.Constraint("Equal", 5, 6),
    Sketcher.Constraint("Equal", 11, 12),
    Sketcher.Constraint("Equal", 23, 24),
    Sketcher.Constraint("Equal", 35, 36),
    Sketcher.Constraint("Equal", 36, 37),
    Sketcher.Constraint("Equal", 37, 38),
    Sketcher.Constraint("Equal", 38, 39),
    Sketcher.Constraint("Equal", 41, 42),
    Sketcher.Constraint("Equal", 42, 43),
    Sketcher.Constraint("Equal", 43, 44),
    Sketcher.Constraint("Equal", 44, 45),
    Sketcher.Constraint("Equal", 47, 48),
    Sketcher.Constraint("Equal", 48, 49),
    Sketcher.Constraint("Equal", 49, 50),
    Sketcher.Constraint("Equal", 50, 51),
    Sketcher.Constraint("Equal", 53, 54),
    Sketcher.Constraint("Equal", 54, 55),
    Sketcher.Constraint("Equal", 55, 56),
    Sketcher.Constraint("Equal", 56, 57),
    Sketcher.Constraint("Angle", 0, Q("-120 deg")),
    Sketcher.Constraint("DistanceY", 1, 2, 3, 2, 6.3),
    Sketcher.Constraint("DistanceX", 5, 2, -1, 1, 14.780001),
    Sketcher.Constraint("DistanceX", 8, 2, -1, 1, 28.660002),
    Sketcher.Constraint("DistanceX", 25, 2, 20, 2, 50.836002),
    Sketcher.Constraint("DistanceX", -1, 1, 41, 2, 22.684098),
    Sketcher.Constraint("DistanceY", 45, 2, -1, 1, 17.265501),
    Sketcher.Constraint("DistanceX", -1, 1, 59, 2, 22.3504),
    Sketcher.Constraint("DistanceY", 3, 2, 6, 2, 42.505898),
    Sketcher.Constraint("DistanceX", 12, 2, 7, 2, 20.781799),
    Sketcher.Constraint("DistanceX", 26, 2, 31, 2, 3.490499),
    Sketcher.Constraint("DistanceX", 1, 2, 36, 2, 39.8165),
    Sketcher.Constraint("DistanceX", 40, 2, 46, 2, 52.2531),
    Sketcher.Constraint("DistanceX", 54, 2, 40, 2, 3.3315),
    Sketcher.Constraint("DistanceX", 55, 2, 54, 2, 3.207902),
    Sketcher.Constraint("DistanceX", 11, 2, 57, 2, 40.408701),
    Sketcher.Constraint("DistanceX", 39, 2, 58, 2, 2.832502),
    Sketcher.Constraint("DistanceX", 1, 2, 1, 1, 3.637307),
    Sketcher.Constraint("DistanceY", -1, 1, 6, 2, 24.675912),
    Sketcher.Constraint("DistanceY", 18, 2, -1, 1, 18.865109),
    Sketcher.Constraint("DistanceY", 41, 2, -1, 1, 22.840028),
    Sketcher.Constraint("DistanceY", 42, 2, -1, 1, 24.538441),
    Sketcher.Constraint("DistanceX", -1, 1, 43, 2, 68.469731),
    Sketcher.Constraint("DistanceX", -1, 1, 45, 2, 71.736011),
    Sketcher.Constraint("DistanceY", 46, 2, -1, 1, 19.151289),
    Sketcher.Constraint("DistanceY", -1, 1, 48, 2, 17.675369),
    Sketcher.Constraint("DistanceX", -1, 1, 50, 2, 68.288951),
    Sketcher.Constraint("DistanceX", -1, 1, 51, 2, 71.496932),
    Sketcher.Constraint("DistanceX", -1, 1, 52, 2, 74.585559),
    Sketcher.Constraint("DistanceY", -1, 1, 56, 2, 22.902779),
    Sketcher.Constraint("DistanceY", 24, 2, 20, 2, 8.144559),
    Sketcher.Constraint("DistanceX", 44, 2, 48, 2, 2.71049),
    Sketcher.Constraint("DistanceY", -1, 1, 12, 2, 9.462646),
])
pocket7 = body.newObject("PartDesign::Pocket", "Pocket006")
pocket7.Profile = sketch12
pocket7.Length = 14
doc.recompute()

chamfer = body.newObject("PartDesign::Chamfer", "Chamfer")
chamfer.Base = (pocket7, edges_at(pocket7, [
    (-49.442, -4, -19.341),
    (-102.096, -4, -24.082),
    (-100.425, -4, 24.298),
    (-49.442, -4, 9.15),
    (19.142, -4, 16.738),
    (19.49, -4, -25.225),
    (71.658, -4, -24.933),
    (71.378, -4, 17.046),
    (-25.023, -4, 24.348),
    (-18.417, -4, -24.439),
]))
chamfer.Size = 1

doc.recompute()
